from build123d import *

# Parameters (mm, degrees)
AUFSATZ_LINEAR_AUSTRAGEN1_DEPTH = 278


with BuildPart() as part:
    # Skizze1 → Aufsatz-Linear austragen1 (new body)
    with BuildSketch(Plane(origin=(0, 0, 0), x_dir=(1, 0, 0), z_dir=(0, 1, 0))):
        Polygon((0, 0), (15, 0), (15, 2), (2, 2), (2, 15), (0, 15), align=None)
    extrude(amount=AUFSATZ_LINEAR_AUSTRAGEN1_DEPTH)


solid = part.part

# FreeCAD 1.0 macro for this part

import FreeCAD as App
import Part
import Sketcher
from FreeCAD import Vector

doc = App.newDocument("Part")
body = doc.addObject("PartDesign::Body", "Body")

sketch1 = body.newObject("Sketcher::SketchObject", "Sketch")
sketch1.AttachmentSupport = (doc.getObject("XZ_Plane"), [""])
sketch1.MapMode = "FlatFace"
sketch1.addGeometry([
    Part.LineSegment(Vector(0, 0, 0), Vector(15, 0, 0)),
    Part.LineSegment(Vector(15, 0, 0), Vector(15, -2, 0)),
    Part.LineSegment(Vector(15, -2, 0), Vector(2, -2, 0)),
    Part.LineSegment(Vector(2, -2, 0), Vector(2, -15, 0)),
    Part.LineSegment(Vector(2, -15, 0), Vector(0, -15, 0)),
    Part.LineSegment(Vector(0, -15, 0), Vector(0, 0, 0)),
], False)
sketch1.addConstraint([
    Sketcher.Constraint("Coincident", 0, 2, 1, 1),
    Sketcher.Constraint("Coincident", 1, 2, 2, 1),
    Sketcher.Constraint("Coincident", 2, 2, 3, 1),
    Sketcher.Constraint("Coincident", 3, 2, 4, 1),
    Sketcher.Constraint("Coincident", 4, 2, 5, 1),
    Sketcher.Constraint("Coincident", 5, 2, 0, 1),
    Sketcher.Constraint("Horizontal", 0),
    Sketcher.Constraint("Vertical", 1),
    Sketcher.Constraint("Horizontal", 2),
    Sketcher.Constraint("Vertical", 3),
    Sketcher.Constraint("Horizontal", 4),
    Sketcher.Constraint("Vertical", 5),
    Sketcher.Constraint("Coincident", 5, 2, -1, 1),
    Sketcher.Constraint("Equal", 4, 1),
    Sketcher.Constraint("Equal", 2, 3),
    Sketcher.Constraint("DistanceX", 0, 1, 0, 2, 15.0),
    Sketcher.Constraint("DistanceX", 2, 2, 2, 1, 13.0),
])
pad1 = body.newObject("PartDesign::Pad", "Pad")
pad1.Profile = sketch1
pad1.Length = 278
pad1.Reversed = True

doc.recompute()
